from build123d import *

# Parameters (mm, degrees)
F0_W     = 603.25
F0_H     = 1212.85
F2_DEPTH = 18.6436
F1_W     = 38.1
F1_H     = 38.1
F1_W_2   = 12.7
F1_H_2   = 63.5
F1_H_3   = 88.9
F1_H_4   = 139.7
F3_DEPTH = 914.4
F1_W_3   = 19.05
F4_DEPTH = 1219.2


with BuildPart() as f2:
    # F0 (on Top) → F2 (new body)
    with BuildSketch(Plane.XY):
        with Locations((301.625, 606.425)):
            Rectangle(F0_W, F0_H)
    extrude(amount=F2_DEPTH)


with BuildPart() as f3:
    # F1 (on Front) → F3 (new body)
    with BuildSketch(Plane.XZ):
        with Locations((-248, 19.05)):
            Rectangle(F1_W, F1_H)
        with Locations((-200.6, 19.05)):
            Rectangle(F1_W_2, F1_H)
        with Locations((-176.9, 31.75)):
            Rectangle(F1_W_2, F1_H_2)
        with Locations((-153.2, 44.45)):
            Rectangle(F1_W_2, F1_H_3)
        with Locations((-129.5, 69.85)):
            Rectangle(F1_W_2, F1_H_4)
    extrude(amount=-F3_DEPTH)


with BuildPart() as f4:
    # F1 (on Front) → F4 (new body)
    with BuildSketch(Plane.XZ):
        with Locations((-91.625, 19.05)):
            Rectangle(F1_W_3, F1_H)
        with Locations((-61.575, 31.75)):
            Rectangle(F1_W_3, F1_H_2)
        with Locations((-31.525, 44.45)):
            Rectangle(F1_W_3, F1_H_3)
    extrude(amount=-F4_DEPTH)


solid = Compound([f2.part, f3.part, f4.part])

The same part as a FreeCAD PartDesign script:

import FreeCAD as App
import Part
import Sketcher
from FreeCAD import Vector
Q = App.Units.Quantity


def add_polygon(sketch, points):
    """Adds a closed chain of lines whose ends are joined by coincident constraints."""
    first, n = sketch.GeometryCount, len(points)
    for a, b in zip(points, points[1:] + points[:1]):
        sketch.addGeometry(Part.LineSegment(App.Vector(*a, 0), App.Vector(*b, 0)), False)
    for i in range(n):
        sketch.addConstraint(Sketcher.Constraint("Coincident", first + i, 2, first + (i + 1) % n, 1))

doc = App.newDocument("Part")
body = doc.addObject("PartDesign::Body", "Body")

sketch1 = doc.addObject("Sketcher::SketchObject", "Sketch")
body.addObject(sketch1)
sketch1.AttachmentSupport = (doc.XY_Plane, [""])
sketch1.MapMode = "FlatFace"
add_polygon(sketch1, [(0, 1213), (0, 0), (603, 0), (603, 1213)])
sketch1.addConstraint(Sketcher.Constraint("Vertical", 0))
sketch1.addConstraint(Sketcher.Constraint("Horizontal", 1))
sketch1.addConstraint(Sketcher.Constraint("Vertical", 2))
sketch1.addConstraint(Sketcher.Constraint("Horizontal", 3))
sketch1.addConstraint(Sketcher.Constraint("Coincident", 0, 2, -1, 1))
sketch1.addConstraint(Sketcher.Constraint("DistanceX", 1, 1, 1, 2, Q("23.75 in")))
sketch1.addConstraint(Sketcher.Constraint("DistanceY", 0, 2, 0, 1, Q("47.75 in")))
pad1 = doc.addObject("PartDesign::Pad", "Pad")
body.addObject(pad1)
pad1.Profile = sketch1
pad1.Length = Q("0.734 in")
body2 = doc.addObject("PartDesign::Body", "Body001")
body2.AllowCompound = True

sketch2 = doc.addObject("Sketcher::SketchObject", "Sketch001")
body2.addObject(sketch2)
sketch2.AttachmentSupport = (doc.getObject("XZ_Plane001"), [""])
sketch2.MapMode = "FlatFace"
add_polygon(sketch2, [(-267, 38), (-267, 0), (-229, 0), (-229, 38)])
add_polygon(sketch2, [(-207, 38), (-207, 0), (-194, 0), (-194, 38)])
add_polygon(sketch2, [(-183, 64), (-183, 0), (-171, 0), (-171, 64)])
add_polygon(sketch2, [(-160, 89), (-160, 0), (-147, 0), (-147, 89)])
add_polygon(sketch2, [(-136, 140), (-136, 0), (-123, 0), (-123, 140)])
sketch2.addConstraint(Sketcher.Constraint("Vertical", 0))
sketch2.addConstraint(Sketcher.Constraint("Horizontal", 1))
sketch2.addConstraint(Sketcher.Constraint("Vertical", 2))
sketch2.addConstraint(Sketcher.Constraint("Horizontal", 3))
sketch2.addConstraint(Sketcher.Constraint("Vertical", 4))
sketch2.addConstraint(Sketcher.Constraint("Horizontal", 5))
sketch2.addConstraint(Sketcher.Constraint("Vertical", 6))
sketch2.addConstraint(Sketcher.Constraint("Horizontal", 7))
sketch2.addConstraint(Sketcher.Constraint("Vertical", 8))
sketch2.addConstraint(Sketcher.Constraint("Horizontal", 9))
sketch2.addConstraint(Sketcher.Constraint("Vertical", 10))
sketch2.addConstraint(Sketcher.Constraint("Horizontal", 11))
sketch2.addConstraint(Sketcher.Constraint("Vertical", 12))
sketch2.addConstraint(Sketcher.Constraint("Horizontal", 13))
sketch2.addConstraint(Sketcher.Constraint("Vertical", 14))
sketch2.addConstraint(Sketcher.Constraint("Horizontal", 15))
sketch2.addConstraint(Sketcher.Constraint("Vertical", 16))
sketch2.addConstraint(Sketcher.Constraint("Horizontal", 17))
sketch2.addConstraint(Sketcher.Constraint("Vertical", 18))
sketch2.addConstraint(Sketcher.Constraint("Horizontal", 19))
sketch2.addConstraint(Sketcher.Constraint("PointOnObject", 0, 2, -1))
sketch2.addConstraint(Sketcher.Constraint("PointOnObject", 4, 2, -1))
sketch2.addConstraint(Sketcher.Constraint("PointOnObject", 8, 2, -1))
sketch2.addConstraint(Sketcher.Constraint("PointOnObject", 12, 2, -1))
sketch2.addConstraint(Sketcher.Constraint("PointOnObject", 16, 2, -1))
sketch2.addConstraint(Sketcher.Constraint("Horizontal", 3, 2, 6, 2))
sketch2.addConstraint(Sketcher.Constraint("Equal", 7, 9))
sketch2.addConstraint(Sketcher.Constraint("Equal", 11, 13))
sketch2.addConstraint(Sketcher.Constraint("Equal", 15, 17))
sketch2.addConstraint(Sketcher.Constraint("Equal", 3, 0))
sketch2.addConstraint(Sketcher.Constraint("DistanceX", 1, 1, 1, 2, Q("1.5 in")))
sketch2.addConstraint(Sketcher.Constraint("DistanceX", 5, 1, 5, 2, Q("0.5 in")))
sketch2.addConstraint(Sketcher.Constraint("DistanceY", 8, 2, 8, 1, Q("2.5 in")))
sketch2.addConstraint(Sketcher.Constraint("DistanceY", 12, 2, 12, 1, Q("3.5 in")))
sketch2.addConstraint(Sketcher.Constraint("DistanceY", 16, 2, 16, 1, Q("5.5 in")))
sketch2.addConstraint(Sketcher.Constraint("DistanceX", 0, 2, -1, 1, 267.05))
sketch2.addConstraint(Sketcher.Constraint("DistanceX", 4, 2, -1, 1, 206.95))
sketch2.addConstraint(Sketcher.Constraint("DistanceX", 8, 2, -1, 1, 183.25))
sketch2.addConstraint(Sketcher.Constraint("DistanceX", 12, 2, -1, 1, 159.55))
sketch2.addConstraint(Sketcher.Constraint("DistanceX", 16, 2, -1, 1, 135.85))
pad2 = doc.addObject("PartDesign::Pad", "Pad001")
body2.addObject(pad2)
pad2.Profile = sketch2
pad2.Length = Q("36 in")
pad2.Reversed = True
body3 = doc.addObject("PartDesign::Body", "Body002")
body3.AllowCompound = True

sketch3 = doc.addObject("Sketcher::SketchObject", "Sketch002")
body3.addObject(sketch3)
sketch3.AttachmentSupport = (doc.getObject("XZ_Plane002"), [""])
sketch3.MapMode = "FlatFace"
add_polygon(sketch3, [(-101, 38), (-101, 0), (-82, 0), (-82, 38)])
add_polygon(sketch3, [(-71, 64), (-71, 0), (-52, 0), (-52, 64)])
add_polygon(sketch3, [(-41, 89), (-41, 0), (-22, 0), (-22, 89)])
sketch3.addConstraint(Sketcher.Constraint("Vertical", 0))
sketch3.addConstraint(Sketcher.Constraint("Horizontal", 1))
sketch3.addConstraint(Sketcher.Constraint("Vertical", 2))
sketch3.addConstraint(Sketcher.Constraint("Horizontal", 3))
sketch3.addConstraint(Sketcher.Constraint("Vertical", 4))
sketch3.addConstraint(Sketcher.Constraint("Horizontal", 5))
sketch3.addConstraint(Sketcher.Constraint("Vertical", 6))
sketch3.addConstraint(Sketcher.Constraint("Horizontal", 7))
sketch3.addConstraint(Sketcher.Constraint("Vertical", 8))
sketch3.addConstraint(Sketcher.Constraint("Horizontal", 9))
sketch3.addConstraint(Sketcher.Constraint("Vertical", 10))
sketch3.addConstraint(Sketcher.Constraint("Horizontal", 11))
sketch3.addConstraint(Sketcher.Constraint("PointOnObject", 0, 2, -1))
sketch3.addConstraint(Sketcher.Constraint("PointOnObject", 4, 2, -1))
sketch3.addConstraint(Sketcher.Constraint("PointOnObject", 8, 2, -1))
sketch3.addConstraint(Sketcher.Constraint("Equal", 3, 5))
sketch3.addConstraint(Sketcher.Constraint("Equal", 7, 9))
sketch3.addConstraint(Sketcher.Constraint("DistanceY", 0, 2, 0, 1, Q("1.5 in")))
sketch3.addConstraint(Sketcher.Constraint("DistanceY", 4, 2, 4, 1, Q("2.5 in")))
sketch3.addConstraint(Sketcher.Constraint("DistanceY", 8, 2, 8, 1, Q("3.5 in")))
sketch3.addConstraint(Sketcher.Constraint("DistanceX", 1, 1, 1, 2, Q("0.75 in")))
sketch3.addConstraint(Sketcher.Constraint("DistanceX", 0, 2, -1, 1, 101.15))
sketch3.addConstraint(Sketcher.Constraint("DistanceX", 4, 2, -1, 1, 71.1))
sketch3.addConstraint(Sketcher.Constraint("DistanceX", 8, 2, -1, 1, 41.05))
pad3 = doc.addObject("PartDesign::Pad", "Pad002")
body3.addObject(pad3)
pad3.Profile = sketch3
pad3.Length = Q("48 in")
pad3.Reversed = True

doc.recompute()
